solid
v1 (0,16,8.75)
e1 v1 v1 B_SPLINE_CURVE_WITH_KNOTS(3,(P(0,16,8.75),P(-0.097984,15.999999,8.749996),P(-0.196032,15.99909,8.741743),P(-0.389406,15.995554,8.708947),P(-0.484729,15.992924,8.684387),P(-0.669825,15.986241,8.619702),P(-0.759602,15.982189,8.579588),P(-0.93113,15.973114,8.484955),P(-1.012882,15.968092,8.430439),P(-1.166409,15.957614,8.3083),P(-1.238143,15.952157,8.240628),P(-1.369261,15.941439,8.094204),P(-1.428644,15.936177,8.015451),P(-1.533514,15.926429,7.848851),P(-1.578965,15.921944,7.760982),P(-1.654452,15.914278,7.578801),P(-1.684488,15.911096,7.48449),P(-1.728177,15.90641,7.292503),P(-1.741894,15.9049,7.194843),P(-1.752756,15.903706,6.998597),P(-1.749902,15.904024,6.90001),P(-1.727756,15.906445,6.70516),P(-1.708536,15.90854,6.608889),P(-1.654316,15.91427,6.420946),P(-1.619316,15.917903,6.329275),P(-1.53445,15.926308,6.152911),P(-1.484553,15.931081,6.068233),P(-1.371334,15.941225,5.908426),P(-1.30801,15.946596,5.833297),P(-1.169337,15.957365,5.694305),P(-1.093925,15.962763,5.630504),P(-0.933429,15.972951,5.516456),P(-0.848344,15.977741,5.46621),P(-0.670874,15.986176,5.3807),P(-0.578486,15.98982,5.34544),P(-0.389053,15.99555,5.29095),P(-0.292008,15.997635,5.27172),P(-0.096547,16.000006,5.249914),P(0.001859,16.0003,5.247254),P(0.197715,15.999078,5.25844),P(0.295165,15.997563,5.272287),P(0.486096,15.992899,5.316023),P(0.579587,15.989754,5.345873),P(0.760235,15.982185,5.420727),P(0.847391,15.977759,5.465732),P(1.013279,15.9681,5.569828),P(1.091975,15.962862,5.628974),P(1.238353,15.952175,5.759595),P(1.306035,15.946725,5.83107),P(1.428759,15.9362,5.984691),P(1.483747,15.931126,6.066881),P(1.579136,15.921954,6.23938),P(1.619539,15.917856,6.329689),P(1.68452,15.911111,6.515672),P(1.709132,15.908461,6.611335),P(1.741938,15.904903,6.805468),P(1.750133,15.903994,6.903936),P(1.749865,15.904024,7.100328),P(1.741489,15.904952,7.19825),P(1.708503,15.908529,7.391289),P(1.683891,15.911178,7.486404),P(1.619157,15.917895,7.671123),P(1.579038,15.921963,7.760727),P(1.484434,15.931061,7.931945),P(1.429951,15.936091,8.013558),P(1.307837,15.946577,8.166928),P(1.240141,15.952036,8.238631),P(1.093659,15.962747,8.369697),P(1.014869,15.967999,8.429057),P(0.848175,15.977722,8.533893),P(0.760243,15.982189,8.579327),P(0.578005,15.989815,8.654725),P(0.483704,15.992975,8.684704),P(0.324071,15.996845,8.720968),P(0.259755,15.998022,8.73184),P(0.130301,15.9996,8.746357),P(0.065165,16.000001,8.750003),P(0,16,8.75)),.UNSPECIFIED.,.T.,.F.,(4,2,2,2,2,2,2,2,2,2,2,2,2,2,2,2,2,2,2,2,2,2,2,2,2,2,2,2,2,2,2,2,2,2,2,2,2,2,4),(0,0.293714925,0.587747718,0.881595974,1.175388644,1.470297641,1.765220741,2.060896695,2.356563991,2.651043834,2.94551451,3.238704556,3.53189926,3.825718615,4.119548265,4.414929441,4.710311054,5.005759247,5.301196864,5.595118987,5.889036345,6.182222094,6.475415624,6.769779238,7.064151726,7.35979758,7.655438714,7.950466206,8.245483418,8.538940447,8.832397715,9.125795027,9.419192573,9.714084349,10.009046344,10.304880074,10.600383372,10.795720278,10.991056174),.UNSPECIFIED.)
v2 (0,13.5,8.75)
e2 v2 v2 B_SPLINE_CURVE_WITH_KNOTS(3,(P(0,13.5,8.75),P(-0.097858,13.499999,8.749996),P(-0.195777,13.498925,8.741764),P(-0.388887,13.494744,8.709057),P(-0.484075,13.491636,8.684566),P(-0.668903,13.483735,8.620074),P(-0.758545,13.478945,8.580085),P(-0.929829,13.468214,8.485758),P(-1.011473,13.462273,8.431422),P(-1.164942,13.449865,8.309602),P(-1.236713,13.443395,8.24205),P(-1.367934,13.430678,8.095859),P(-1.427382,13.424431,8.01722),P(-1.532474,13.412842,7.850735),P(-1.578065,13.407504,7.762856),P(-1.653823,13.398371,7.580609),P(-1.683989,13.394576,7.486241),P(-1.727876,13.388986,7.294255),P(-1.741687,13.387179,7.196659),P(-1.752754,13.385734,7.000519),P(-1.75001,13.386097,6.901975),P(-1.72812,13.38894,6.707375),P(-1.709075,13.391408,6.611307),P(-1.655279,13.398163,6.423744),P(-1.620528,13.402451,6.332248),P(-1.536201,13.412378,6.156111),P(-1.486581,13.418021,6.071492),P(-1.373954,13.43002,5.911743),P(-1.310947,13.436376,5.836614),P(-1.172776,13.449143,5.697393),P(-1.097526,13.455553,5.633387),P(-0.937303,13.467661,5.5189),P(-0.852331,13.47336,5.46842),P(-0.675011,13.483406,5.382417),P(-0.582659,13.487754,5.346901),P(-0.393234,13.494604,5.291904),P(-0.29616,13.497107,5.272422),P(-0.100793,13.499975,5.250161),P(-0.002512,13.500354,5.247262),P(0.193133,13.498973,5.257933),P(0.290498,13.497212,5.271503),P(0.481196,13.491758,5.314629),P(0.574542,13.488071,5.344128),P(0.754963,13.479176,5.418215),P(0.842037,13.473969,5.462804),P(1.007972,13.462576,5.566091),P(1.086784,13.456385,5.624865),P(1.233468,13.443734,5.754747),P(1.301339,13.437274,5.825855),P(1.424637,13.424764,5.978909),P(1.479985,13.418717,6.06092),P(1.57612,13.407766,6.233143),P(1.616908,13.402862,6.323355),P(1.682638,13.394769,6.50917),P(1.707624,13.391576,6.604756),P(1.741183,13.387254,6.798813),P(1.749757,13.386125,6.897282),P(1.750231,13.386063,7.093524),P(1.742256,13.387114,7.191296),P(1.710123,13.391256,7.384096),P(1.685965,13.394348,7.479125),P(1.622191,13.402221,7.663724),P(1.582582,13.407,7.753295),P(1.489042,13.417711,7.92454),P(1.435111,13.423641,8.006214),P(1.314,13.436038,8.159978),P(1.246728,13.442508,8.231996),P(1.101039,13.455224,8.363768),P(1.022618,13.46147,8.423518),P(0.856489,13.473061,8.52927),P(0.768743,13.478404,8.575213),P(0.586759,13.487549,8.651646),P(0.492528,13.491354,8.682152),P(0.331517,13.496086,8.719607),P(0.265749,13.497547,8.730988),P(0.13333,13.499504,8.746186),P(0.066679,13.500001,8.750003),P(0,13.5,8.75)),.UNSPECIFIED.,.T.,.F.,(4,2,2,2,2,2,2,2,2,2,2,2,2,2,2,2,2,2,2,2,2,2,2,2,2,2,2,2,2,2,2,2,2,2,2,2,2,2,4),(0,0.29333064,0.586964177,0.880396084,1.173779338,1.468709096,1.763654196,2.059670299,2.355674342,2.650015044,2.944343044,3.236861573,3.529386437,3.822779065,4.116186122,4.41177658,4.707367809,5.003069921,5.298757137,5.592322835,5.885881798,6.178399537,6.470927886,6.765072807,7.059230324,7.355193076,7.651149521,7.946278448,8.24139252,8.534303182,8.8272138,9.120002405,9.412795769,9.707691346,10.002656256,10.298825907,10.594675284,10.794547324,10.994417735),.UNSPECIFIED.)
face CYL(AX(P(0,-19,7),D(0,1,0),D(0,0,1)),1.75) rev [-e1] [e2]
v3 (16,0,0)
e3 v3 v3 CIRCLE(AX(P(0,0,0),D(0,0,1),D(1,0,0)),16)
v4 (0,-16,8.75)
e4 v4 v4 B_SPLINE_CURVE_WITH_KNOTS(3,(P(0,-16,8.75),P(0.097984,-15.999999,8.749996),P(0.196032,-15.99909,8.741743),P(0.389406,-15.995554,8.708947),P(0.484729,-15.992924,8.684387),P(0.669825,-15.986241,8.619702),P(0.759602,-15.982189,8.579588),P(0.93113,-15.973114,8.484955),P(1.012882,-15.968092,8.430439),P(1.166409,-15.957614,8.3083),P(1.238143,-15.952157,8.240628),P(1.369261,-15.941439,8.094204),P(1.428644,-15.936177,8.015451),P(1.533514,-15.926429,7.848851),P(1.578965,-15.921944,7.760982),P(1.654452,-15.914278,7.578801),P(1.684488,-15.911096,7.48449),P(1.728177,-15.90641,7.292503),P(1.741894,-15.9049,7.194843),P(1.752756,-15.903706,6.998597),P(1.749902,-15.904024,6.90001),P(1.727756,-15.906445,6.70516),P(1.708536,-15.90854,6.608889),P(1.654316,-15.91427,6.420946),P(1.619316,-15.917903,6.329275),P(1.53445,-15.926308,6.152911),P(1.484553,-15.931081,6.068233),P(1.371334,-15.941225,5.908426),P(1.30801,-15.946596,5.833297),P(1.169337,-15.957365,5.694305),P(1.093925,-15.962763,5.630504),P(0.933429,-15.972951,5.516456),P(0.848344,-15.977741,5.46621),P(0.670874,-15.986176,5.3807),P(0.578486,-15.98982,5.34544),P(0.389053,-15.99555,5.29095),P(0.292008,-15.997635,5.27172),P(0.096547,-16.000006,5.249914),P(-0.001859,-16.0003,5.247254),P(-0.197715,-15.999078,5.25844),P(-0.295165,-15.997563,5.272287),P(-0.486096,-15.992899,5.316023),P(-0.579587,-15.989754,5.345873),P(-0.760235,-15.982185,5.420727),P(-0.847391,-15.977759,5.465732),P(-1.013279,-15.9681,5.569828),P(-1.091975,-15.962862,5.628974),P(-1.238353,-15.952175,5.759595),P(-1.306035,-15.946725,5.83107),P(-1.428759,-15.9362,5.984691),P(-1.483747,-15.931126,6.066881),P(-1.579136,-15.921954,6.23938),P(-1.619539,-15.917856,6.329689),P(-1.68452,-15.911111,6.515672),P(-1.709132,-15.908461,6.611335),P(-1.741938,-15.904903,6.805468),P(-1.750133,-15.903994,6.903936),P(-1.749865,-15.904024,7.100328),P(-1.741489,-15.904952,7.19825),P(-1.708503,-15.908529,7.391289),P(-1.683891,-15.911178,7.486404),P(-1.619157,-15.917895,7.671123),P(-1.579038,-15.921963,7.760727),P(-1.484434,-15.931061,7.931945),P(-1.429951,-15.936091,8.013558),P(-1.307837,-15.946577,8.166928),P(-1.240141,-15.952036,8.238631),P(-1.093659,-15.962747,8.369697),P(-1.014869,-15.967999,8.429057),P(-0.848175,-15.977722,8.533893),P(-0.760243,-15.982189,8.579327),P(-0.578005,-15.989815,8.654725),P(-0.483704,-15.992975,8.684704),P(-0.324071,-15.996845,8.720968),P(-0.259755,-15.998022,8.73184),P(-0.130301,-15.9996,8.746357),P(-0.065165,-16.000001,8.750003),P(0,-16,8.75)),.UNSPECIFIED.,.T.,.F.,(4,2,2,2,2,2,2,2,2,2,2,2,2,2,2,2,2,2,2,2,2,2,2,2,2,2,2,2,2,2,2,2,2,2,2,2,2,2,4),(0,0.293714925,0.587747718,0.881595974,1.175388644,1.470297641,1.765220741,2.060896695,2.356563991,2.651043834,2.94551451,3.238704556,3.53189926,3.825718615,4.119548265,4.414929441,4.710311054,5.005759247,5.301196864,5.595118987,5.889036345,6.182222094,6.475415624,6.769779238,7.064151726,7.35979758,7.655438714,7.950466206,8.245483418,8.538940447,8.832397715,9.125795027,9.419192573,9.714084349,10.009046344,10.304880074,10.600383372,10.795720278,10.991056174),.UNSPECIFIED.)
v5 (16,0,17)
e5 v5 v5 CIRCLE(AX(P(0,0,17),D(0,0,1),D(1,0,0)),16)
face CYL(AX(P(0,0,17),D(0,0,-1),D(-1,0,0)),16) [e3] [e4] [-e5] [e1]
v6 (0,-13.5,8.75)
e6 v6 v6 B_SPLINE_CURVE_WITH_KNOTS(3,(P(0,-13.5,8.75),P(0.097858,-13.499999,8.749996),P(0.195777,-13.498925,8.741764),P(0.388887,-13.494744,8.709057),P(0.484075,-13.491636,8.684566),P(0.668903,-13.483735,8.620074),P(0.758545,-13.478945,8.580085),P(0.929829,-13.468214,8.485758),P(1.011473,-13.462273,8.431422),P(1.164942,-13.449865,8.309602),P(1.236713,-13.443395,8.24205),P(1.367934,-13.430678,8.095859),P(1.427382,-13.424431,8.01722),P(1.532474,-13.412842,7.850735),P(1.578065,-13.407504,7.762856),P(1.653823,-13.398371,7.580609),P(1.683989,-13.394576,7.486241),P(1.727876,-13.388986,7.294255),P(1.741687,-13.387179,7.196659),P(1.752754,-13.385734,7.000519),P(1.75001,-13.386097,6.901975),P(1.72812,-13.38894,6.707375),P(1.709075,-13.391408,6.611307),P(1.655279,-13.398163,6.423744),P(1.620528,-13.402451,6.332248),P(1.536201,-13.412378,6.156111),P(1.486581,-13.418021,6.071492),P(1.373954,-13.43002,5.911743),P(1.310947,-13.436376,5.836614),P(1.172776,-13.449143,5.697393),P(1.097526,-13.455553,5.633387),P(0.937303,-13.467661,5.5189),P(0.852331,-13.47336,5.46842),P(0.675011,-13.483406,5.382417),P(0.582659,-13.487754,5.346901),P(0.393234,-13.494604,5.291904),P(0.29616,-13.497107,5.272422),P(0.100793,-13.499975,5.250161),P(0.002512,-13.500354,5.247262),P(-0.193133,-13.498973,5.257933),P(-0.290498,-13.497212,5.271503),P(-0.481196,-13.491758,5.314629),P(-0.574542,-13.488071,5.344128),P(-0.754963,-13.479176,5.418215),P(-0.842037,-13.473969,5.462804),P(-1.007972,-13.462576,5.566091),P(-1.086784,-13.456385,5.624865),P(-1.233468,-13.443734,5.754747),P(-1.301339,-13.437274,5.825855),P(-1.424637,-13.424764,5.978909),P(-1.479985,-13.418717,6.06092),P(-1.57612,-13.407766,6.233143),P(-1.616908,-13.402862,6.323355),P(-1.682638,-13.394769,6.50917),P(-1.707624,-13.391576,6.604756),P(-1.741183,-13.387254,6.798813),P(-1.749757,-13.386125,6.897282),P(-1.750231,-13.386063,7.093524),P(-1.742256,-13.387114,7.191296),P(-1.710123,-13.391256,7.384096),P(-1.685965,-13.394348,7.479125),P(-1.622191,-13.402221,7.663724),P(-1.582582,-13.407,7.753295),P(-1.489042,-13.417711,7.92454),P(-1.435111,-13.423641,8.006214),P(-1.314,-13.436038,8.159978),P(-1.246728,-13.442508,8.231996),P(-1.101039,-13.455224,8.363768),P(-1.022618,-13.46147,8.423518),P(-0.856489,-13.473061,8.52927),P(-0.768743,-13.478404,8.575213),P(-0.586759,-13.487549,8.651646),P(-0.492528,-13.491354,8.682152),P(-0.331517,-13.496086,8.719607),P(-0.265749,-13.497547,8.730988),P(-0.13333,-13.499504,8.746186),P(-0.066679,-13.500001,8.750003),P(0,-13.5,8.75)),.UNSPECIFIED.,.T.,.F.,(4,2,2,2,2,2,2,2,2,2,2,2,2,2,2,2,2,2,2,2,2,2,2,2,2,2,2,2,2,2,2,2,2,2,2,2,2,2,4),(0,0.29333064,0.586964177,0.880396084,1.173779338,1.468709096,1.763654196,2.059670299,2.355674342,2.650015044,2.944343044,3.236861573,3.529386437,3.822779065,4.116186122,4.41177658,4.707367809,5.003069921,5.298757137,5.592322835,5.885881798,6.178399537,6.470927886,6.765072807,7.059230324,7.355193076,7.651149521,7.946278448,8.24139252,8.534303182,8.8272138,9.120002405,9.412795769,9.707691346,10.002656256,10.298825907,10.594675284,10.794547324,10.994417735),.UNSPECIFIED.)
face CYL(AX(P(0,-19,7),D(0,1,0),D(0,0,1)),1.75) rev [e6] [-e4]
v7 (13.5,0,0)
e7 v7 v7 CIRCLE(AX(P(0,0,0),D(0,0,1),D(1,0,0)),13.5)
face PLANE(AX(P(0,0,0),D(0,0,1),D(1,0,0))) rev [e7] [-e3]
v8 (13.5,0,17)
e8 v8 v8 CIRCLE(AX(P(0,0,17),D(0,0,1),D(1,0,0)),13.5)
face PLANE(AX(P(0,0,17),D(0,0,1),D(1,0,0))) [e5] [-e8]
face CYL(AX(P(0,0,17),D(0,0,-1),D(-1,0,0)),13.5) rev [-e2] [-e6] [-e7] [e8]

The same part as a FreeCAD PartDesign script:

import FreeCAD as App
import Part
import Sketcher
Q = App.Units.Quantity

doc = App.newDocument("Part")
body = doc.addObject("PartDesign::Body", "Body")

sketch1 = body.newObject("Sketcher::SketchObject", "Sketch")
sketch1.AttachmentSupport = (doc.getObject("XY_Plane"), [""])
sketch1.MapMode = "FlatFace"
sketch1.addGeometry(Part.Circle(App.Vector(0, 0, 0), App.Vector(0, 0, 1), 16), False)
sketch1.addGeometry(Part.Circle(App.Vector(0, 0, 0), App.Vector(0, 0, 1), 14), False)
sketch1.addConstraint(Sketcher.Constraint("Coincident", 0, 3, -1, 1))
sketch1.addConstraint(Sketcher.Constraint("Coincident", 1, 3, -1, 1))
sketch1.addConstraint(Sketcher.Constraint("Diameter", 0, Q("32 mm")))
sketch1.addConstraint(Sketcher.Constraint("Diameter", 1, Q("27 mm")))
pad1 = body.newObject("PartDesign::Pad", "Pad")
pad1.Profile = sketch1
pad1.Length = 17

sketch2 = body.newObject("Sketcher::SketchObject", "Sketch001")
sketch2.AttachmentSupport = (doc.getObject("XZ_Plane"), [""])
sketch2.MapMode = "FlatFace"
sketch2.AttachmentOffset = App.Placement(App.Vector(0, 0, -16), App.Rotation())
sketch2.addGeometry(Part.Circle(App.Vector(0, 7, 0), App.Vector(0, 0, 1), 1.8), False)
sketch2.addConstraint(Sketcher.Constraint("PointOnObject", 0, 3, -2))
sketch2.addConstraint(Sketcher.Constraint("Diameter", 0, Q("3.5 mm")))
sketch2.addConstraint(Sketcher.Constraint("DistanceY", -1, 1, 0, 3, Q("7 mm")))
pocket1 = body.newObject("PartDesign::Pocket", "Pocket")
pocket1.Profile = sketch2
pocket1.Length = 35
pocket1.Reversed = True

doc.recompute()
